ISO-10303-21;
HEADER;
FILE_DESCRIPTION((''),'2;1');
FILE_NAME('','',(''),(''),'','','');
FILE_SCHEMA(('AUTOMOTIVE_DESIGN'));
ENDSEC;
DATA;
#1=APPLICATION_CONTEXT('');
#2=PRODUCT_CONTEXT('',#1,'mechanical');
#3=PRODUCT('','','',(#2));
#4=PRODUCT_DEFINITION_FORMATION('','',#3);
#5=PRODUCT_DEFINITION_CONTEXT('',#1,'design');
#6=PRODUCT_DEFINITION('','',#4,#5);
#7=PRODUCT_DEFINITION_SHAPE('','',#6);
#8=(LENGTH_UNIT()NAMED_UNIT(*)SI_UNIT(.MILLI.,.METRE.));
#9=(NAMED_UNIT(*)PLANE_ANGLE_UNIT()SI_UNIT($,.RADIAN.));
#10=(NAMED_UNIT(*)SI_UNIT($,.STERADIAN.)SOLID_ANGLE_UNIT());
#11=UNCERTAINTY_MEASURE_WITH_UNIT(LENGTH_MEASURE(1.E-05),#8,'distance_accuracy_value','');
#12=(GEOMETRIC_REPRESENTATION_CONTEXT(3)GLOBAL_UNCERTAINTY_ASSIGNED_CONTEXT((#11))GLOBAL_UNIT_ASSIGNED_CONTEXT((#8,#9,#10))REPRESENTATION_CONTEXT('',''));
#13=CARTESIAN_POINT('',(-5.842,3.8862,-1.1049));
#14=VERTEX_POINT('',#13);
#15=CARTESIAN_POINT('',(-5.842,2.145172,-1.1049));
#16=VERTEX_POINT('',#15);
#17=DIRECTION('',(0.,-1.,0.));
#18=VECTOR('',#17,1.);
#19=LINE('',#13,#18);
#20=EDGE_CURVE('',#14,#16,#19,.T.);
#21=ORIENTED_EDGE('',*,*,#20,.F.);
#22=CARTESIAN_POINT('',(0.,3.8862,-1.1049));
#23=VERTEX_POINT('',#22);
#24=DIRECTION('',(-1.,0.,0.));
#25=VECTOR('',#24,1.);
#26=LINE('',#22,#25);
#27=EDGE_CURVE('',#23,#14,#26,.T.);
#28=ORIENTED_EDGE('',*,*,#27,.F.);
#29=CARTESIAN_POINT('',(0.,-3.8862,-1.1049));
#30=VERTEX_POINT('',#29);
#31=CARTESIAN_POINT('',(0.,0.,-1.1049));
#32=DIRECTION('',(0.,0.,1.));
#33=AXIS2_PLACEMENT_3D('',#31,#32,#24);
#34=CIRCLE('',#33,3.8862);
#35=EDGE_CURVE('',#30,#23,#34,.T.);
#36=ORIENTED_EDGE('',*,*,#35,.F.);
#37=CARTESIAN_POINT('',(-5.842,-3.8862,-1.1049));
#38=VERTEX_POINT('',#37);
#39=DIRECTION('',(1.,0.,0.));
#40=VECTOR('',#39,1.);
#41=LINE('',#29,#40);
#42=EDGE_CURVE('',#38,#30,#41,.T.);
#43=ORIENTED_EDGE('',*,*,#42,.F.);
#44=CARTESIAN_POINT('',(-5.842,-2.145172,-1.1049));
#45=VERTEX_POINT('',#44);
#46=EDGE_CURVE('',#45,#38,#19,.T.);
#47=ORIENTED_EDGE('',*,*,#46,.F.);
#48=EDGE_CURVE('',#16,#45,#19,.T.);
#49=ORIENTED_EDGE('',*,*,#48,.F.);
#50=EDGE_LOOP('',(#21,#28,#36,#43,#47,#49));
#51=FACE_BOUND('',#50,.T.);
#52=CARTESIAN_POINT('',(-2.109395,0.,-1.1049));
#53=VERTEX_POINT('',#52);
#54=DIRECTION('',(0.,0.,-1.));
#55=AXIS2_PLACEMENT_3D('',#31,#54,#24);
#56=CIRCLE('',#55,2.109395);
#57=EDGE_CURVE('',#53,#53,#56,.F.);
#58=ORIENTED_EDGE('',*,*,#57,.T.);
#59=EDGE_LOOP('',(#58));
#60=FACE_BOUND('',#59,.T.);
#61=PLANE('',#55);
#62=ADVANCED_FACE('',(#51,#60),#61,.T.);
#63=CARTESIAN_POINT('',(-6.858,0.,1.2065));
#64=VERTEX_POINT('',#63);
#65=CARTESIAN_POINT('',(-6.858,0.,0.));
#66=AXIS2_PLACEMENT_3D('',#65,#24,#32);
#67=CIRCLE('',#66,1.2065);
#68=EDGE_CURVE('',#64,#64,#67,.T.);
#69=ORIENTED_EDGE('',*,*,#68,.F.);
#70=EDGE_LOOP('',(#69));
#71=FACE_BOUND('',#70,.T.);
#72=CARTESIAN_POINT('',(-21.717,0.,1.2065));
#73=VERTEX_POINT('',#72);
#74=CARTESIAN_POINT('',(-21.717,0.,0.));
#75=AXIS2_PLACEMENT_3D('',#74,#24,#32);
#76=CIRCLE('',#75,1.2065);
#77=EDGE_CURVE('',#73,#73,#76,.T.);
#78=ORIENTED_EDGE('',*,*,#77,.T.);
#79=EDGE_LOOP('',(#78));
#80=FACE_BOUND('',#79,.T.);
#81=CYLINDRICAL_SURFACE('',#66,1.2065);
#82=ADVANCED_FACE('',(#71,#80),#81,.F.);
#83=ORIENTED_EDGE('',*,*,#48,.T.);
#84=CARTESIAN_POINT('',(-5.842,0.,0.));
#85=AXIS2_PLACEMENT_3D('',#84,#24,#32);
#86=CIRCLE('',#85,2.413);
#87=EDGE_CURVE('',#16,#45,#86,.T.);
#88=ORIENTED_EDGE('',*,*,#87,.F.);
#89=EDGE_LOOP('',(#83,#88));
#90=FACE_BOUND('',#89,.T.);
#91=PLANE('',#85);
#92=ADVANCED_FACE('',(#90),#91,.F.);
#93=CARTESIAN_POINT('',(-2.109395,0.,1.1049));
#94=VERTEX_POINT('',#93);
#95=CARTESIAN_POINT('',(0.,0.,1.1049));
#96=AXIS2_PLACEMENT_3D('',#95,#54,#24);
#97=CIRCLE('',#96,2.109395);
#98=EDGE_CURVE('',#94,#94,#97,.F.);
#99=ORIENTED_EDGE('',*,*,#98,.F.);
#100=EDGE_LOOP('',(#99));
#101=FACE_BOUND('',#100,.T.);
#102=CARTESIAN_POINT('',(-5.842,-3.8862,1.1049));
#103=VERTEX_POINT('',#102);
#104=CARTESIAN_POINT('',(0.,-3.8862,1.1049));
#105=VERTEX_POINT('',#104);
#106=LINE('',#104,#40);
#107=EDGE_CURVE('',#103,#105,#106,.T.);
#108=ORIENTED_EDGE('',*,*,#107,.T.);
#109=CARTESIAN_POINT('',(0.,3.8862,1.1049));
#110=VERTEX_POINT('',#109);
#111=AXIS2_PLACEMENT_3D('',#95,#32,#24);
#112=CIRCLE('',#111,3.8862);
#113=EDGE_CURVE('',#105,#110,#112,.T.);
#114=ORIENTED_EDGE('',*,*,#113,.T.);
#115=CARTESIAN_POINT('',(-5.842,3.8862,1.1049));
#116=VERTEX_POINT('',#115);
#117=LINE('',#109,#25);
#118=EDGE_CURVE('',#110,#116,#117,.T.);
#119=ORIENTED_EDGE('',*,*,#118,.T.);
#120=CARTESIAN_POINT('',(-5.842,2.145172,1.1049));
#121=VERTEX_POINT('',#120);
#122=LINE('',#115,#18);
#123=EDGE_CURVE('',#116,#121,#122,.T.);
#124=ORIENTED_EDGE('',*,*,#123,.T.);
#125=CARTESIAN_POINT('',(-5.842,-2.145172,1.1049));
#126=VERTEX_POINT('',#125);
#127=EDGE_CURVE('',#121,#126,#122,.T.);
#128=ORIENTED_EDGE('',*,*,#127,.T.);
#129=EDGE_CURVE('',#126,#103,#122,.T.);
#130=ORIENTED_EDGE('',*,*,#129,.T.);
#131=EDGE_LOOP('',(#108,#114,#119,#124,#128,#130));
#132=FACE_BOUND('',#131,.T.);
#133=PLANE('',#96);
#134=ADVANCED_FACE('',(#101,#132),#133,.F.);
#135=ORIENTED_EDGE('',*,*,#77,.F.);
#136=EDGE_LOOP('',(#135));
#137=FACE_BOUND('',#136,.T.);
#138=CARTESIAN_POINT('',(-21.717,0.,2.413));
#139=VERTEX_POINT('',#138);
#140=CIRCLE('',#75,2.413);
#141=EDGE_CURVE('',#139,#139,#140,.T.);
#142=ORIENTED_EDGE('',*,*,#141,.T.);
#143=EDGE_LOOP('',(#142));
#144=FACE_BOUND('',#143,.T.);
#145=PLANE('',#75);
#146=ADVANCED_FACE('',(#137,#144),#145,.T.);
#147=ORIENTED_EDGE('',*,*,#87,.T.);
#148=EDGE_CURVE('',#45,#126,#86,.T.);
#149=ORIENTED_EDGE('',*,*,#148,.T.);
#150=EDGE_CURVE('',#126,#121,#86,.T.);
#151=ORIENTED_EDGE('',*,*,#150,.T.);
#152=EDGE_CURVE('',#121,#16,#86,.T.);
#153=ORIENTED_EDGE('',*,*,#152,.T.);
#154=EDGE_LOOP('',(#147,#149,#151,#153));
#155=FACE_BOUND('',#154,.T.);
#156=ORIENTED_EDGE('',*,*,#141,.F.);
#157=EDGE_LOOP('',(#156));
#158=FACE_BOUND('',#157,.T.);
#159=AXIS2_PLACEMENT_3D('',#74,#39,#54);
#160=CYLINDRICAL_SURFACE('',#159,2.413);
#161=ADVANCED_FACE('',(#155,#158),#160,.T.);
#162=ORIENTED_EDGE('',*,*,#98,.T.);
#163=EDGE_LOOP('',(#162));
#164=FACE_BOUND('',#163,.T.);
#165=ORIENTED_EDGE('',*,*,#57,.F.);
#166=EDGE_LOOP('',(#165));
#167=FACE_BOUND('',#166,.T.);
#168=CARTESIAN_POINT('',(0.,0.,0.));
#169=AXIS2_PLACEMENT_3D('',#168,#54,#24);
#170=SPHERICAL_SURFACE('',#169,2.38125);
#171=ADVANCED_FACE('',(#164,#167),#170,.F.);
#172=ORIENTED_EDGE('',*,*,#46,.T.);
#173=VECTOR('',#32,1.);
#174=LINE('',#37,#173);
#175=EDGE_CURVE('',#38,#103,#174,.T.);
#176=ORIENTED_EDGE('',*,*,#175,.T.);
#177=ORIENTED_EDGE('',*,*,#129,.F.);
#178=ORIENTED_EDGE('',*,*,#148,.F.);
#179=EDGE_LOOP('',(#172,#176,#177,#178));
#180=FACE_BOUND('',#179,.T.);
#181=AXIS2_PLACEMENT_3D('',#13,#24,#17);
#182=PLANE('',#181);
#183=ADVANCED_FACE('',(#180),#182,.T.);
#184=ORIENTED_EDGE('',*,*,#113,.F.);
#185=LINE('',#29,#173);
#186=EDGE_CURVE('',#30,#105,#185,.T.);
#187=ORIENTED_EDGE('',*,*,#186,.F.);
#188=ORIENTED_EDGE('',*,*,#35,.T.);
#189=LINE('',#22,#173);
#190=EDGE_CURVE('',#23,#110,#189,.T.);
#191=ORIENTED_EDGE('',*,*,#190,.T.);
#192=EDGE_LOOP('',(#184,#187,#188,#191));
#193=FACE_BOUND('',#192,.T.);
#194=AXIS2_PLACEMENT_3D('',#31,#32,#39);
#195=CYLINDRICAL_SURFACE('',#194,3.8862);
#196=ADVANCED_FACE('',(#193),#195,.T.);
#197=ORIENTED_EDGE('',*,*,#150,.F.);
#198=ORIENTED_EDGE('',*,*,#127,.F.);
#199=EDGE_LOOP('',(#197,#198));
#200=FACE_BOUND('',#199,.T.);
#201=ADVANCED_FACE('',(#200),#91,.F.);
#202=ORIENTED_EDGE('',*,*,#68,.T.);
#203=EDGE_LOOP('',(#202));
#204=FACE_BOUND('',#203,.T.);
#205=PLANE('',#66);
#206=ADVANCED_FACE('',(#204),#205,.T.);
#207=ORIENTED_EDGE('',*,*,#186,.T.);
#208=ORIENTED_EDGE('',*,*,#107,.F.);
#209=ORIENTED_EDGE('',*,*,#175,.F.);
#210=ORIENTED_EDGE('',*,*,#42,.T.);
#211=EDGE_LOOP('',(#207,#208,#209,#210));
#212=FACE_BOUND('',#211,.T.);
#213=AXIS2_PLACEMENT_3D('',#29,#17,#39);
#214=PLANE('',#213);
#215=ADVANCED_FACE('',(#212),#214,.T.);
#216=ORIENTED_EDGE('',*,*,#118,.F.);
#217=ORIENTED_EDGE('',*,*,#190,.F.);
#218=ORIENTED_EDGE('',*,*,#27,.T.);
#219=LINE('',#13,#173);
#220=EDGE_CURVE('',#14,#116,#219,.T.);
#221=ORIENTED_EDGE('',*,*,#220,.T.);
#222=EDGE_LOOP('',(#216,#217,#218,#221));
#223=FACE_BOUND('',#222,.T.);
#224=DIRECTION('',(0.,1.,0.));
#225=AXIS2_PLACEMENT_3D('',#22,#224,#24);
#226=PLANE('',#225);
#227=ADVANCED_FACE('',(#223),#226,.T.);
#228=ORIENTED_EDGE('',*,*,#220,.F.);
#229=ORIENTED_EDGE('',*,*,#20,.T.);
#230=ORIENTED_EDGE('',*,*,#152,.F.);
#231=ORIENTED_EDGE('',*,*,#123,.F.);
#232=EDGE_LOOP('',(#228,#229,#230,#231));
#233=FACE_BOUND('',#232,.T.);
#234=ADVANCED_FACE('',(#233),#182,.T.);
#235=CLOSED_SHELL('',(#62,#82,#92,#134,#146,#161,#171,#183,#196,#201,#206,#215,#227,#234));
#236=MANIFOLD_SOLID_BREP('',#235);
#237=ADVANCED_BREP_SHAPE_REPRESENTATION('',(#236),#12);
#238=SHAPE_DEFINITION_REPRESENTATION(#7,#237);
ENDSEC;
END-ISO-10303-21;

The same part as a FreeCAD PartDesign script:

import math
import FreeCAD as App
import Part
import Sketcher
Q = App.Units.Quantity

doc = App.newDocument("Part")
params = doc.addObject("Spreadsheet::Sheet", "Params")
for row, (alias, value) in enumerate([
    ("sketch1_radius", "0.153 in"),
    ("sketch1_width", "0.23 in"),
    ("pad1_length", "0.0435 in"),
    ("pad1_length2", "0.0435 in"),
    ("sketch2_diameter", "0.19 in"),
    ("pad2_length", "0.625 in"),
    ("sketch3_diameter", "0.095 in"),
    ("pocket1_length", "0.585 in"),
    ("sketch4_radius", "0.09375 in"),
    ("groove_angle", "360 deg"),
], start=1):
    params.set(f"A{row}", alias)
    params.set(f"B{row}", "=" + value)
    params.setAlias(f"B{row}", alias)

body = doc.addObject("PartDesign::Body", "Body")

# Sketch on XY plane
sketch1 = body.newObject("Sketcher::SketchObject", "Sketch")
sketch1.AttachmentSupport = (doc.getObject("XY_Plane"), [""])
sketch1.MapMode = "FlatFace"
sketch1.addGeometry([
    Part.LineSegment(App.Vector(0, 3.8862, 0), App.Vector(-5.842, 3.8862, 0)),
    Part.LineSegment(App.Vector(-5.842, 3.8862, 0), App.Vector(-5.842, -3.8862, 0)),
    Part.LineSegment(App.Vector(-5.842, -3.8862, 0), App.Vector(0, -3.8862, 0)),
    Part.ArcOfCircle(Part.Circle(App.Vector(0, 0, 0), App.Vector(0, 0, 1), 3.8862), math.radians(-90), math.radians(90)),
], False)
sketch1.addConstraint([
    Sketcher.Constraint("Coincident", 0, 2, 1, 1),
    Sketcher.Constraint("Coincident", 1, 2, 2, 1),
    Sketcher.Constraint("Tangent", 2, 2, 3, 1),
    Sketcher.Constraint("Tangent", 3, 2, 0, 1),
    Sketcher.Constraint("Horizontal", 0),
    Sketcher.Constraint("Vertical", 1),
    Sketcher.Constraint("Horizontal", 2),
    Sketcher.Constraint("Coincident", 3, 3, -1, 1),
    Sketcher.Constraint("Radius", 3, Q("0.153 in")),
    Sketcher.Constraint("DistanceX", 0, 2, 0, 1, Q("0.23 in")),
])
sketch1.setExpression("Constraints[8]", "Params.sketch1_radius")
sketch1.setExpression("Constraints[9]", "Params.sketch1_width")
pad1 = body.newObject("PartDesign::Pad", "Pad")
pad1.Profile = sketch1
pad1.Type = "TwoLengths"
pad1.setExpression("Length", "Params.pad1_length")
pad1.setExpression("Length2", "Params.pad1_length2")

# Sketch on YZ plane
sketch2 = body.newObject("Sketcher::SketchObject", "Sketch001")
sketch2.AttachmentSupport = (doc.getObject("YZ_Plane"), [""])
sketch2.MapMode = "FlatFace"
sketch2.AttachmentOffset = App.Placement(App.Vector(0, 0, -0.23 * 25.4), App.Rotation())
sketch2.addGeometry(Part.Circle(App.Vector(0, 0, 0), App.Vector(0, 0, 1), 2.413), False)
sketch2.addConstraint([
    Sketcher.Constraint("Coincident", 0, 3, -1, 1),
    Sketcher.Constraint("Diameter", 0, Q("0.19 in")),
])
sketch2.setExpression("Constraints[1]", "Params.sketch2_diameter")
pad2 = body.newObject("PartDesign::Pad", "Pad001")
pad2.Profile = sketch2
pad2.setExpression("Length", "Params.pad2_length")
pad2.Reversed = True

# Sketch on YZ plane
sketch3 = body.newObject("Sketcher::SketchObject", "Sketch002")
sketch3.AttachmentSupport = (doc.getObject("YZ_Plane"), [""])
sketch3.MapMode = "FlatFace"
sketch3.AttachmentOffset = App.Placement(App.Vector(0, 0, -0.855 * 25.4), App.Rotation())
sketch3.addGeometry(Part.Circle(App.Vector(0, 0, 0), App.Vector(0, 0, 1), 1.2065), False)
sketch3.addConstraint([
    Sketcher.Constraint("Coincident", 0, 3, -1, 1),
    Sketcher.Constraint("Diameter", 0, Q("0.095 in")),
])
sketch3.setExpression("Constraints[1]", "Params.sketch3_diameter")
pocket1 = body.newObject("PartDesign::Pocket", "Pocket")
pocket1.Profile = sketch3
pocket1.setExpression("Length", "Params.pocket1_length")
pocket1.Reversed = True

# Sketch on XY plane
sketch4 = body.newObject("Sketcher::SketchObject", "Sketch003")
sketch4.AttachmentSupport = (doc.getObject("XY_Plane"), [""])
sketch4.MapMode = "FlatFace"
sketch4.addGeometry([
    Part.LineSegment(App.Vector(0, -2.38125, 0), App.Vector(0, 2.38125, 0)),
    Part.ArcOfCircle(Part.Circle(App.Vector(0, 0, 0), App.Vector(0, 0, 1), 2.38125), math.radians(90), math.radians(270)),
], False)
sketch4.addConstraint([
    Sketcher.Constraint("Coincident", 0, 1, 1, 2),
    Sketcher.Constraint("Coincident", 1, 1, 0, 2),
    Sketcher.Constraint("Vertical", 0),
    Sketcher.Constraint("Coincident", 1, 3, -1, 1),
    Sketcher.Constraint("PointOnObject", 0, 1, -2),
    Sketcher.Constraint("Radius", 1, Q("0.09375 in")),
])
sketch4.setExpression("Constraints[5]", "Params.sketch4_radius")
groove = body.newObject("PartDesign::Groove", "Groove")
groove.Profile = sketch4
groove.ReferenceAxis = (sketch4, ["V_Axis"])
groove.setExpression("Angle", "Params.groove_angle")

doc.recompute()
